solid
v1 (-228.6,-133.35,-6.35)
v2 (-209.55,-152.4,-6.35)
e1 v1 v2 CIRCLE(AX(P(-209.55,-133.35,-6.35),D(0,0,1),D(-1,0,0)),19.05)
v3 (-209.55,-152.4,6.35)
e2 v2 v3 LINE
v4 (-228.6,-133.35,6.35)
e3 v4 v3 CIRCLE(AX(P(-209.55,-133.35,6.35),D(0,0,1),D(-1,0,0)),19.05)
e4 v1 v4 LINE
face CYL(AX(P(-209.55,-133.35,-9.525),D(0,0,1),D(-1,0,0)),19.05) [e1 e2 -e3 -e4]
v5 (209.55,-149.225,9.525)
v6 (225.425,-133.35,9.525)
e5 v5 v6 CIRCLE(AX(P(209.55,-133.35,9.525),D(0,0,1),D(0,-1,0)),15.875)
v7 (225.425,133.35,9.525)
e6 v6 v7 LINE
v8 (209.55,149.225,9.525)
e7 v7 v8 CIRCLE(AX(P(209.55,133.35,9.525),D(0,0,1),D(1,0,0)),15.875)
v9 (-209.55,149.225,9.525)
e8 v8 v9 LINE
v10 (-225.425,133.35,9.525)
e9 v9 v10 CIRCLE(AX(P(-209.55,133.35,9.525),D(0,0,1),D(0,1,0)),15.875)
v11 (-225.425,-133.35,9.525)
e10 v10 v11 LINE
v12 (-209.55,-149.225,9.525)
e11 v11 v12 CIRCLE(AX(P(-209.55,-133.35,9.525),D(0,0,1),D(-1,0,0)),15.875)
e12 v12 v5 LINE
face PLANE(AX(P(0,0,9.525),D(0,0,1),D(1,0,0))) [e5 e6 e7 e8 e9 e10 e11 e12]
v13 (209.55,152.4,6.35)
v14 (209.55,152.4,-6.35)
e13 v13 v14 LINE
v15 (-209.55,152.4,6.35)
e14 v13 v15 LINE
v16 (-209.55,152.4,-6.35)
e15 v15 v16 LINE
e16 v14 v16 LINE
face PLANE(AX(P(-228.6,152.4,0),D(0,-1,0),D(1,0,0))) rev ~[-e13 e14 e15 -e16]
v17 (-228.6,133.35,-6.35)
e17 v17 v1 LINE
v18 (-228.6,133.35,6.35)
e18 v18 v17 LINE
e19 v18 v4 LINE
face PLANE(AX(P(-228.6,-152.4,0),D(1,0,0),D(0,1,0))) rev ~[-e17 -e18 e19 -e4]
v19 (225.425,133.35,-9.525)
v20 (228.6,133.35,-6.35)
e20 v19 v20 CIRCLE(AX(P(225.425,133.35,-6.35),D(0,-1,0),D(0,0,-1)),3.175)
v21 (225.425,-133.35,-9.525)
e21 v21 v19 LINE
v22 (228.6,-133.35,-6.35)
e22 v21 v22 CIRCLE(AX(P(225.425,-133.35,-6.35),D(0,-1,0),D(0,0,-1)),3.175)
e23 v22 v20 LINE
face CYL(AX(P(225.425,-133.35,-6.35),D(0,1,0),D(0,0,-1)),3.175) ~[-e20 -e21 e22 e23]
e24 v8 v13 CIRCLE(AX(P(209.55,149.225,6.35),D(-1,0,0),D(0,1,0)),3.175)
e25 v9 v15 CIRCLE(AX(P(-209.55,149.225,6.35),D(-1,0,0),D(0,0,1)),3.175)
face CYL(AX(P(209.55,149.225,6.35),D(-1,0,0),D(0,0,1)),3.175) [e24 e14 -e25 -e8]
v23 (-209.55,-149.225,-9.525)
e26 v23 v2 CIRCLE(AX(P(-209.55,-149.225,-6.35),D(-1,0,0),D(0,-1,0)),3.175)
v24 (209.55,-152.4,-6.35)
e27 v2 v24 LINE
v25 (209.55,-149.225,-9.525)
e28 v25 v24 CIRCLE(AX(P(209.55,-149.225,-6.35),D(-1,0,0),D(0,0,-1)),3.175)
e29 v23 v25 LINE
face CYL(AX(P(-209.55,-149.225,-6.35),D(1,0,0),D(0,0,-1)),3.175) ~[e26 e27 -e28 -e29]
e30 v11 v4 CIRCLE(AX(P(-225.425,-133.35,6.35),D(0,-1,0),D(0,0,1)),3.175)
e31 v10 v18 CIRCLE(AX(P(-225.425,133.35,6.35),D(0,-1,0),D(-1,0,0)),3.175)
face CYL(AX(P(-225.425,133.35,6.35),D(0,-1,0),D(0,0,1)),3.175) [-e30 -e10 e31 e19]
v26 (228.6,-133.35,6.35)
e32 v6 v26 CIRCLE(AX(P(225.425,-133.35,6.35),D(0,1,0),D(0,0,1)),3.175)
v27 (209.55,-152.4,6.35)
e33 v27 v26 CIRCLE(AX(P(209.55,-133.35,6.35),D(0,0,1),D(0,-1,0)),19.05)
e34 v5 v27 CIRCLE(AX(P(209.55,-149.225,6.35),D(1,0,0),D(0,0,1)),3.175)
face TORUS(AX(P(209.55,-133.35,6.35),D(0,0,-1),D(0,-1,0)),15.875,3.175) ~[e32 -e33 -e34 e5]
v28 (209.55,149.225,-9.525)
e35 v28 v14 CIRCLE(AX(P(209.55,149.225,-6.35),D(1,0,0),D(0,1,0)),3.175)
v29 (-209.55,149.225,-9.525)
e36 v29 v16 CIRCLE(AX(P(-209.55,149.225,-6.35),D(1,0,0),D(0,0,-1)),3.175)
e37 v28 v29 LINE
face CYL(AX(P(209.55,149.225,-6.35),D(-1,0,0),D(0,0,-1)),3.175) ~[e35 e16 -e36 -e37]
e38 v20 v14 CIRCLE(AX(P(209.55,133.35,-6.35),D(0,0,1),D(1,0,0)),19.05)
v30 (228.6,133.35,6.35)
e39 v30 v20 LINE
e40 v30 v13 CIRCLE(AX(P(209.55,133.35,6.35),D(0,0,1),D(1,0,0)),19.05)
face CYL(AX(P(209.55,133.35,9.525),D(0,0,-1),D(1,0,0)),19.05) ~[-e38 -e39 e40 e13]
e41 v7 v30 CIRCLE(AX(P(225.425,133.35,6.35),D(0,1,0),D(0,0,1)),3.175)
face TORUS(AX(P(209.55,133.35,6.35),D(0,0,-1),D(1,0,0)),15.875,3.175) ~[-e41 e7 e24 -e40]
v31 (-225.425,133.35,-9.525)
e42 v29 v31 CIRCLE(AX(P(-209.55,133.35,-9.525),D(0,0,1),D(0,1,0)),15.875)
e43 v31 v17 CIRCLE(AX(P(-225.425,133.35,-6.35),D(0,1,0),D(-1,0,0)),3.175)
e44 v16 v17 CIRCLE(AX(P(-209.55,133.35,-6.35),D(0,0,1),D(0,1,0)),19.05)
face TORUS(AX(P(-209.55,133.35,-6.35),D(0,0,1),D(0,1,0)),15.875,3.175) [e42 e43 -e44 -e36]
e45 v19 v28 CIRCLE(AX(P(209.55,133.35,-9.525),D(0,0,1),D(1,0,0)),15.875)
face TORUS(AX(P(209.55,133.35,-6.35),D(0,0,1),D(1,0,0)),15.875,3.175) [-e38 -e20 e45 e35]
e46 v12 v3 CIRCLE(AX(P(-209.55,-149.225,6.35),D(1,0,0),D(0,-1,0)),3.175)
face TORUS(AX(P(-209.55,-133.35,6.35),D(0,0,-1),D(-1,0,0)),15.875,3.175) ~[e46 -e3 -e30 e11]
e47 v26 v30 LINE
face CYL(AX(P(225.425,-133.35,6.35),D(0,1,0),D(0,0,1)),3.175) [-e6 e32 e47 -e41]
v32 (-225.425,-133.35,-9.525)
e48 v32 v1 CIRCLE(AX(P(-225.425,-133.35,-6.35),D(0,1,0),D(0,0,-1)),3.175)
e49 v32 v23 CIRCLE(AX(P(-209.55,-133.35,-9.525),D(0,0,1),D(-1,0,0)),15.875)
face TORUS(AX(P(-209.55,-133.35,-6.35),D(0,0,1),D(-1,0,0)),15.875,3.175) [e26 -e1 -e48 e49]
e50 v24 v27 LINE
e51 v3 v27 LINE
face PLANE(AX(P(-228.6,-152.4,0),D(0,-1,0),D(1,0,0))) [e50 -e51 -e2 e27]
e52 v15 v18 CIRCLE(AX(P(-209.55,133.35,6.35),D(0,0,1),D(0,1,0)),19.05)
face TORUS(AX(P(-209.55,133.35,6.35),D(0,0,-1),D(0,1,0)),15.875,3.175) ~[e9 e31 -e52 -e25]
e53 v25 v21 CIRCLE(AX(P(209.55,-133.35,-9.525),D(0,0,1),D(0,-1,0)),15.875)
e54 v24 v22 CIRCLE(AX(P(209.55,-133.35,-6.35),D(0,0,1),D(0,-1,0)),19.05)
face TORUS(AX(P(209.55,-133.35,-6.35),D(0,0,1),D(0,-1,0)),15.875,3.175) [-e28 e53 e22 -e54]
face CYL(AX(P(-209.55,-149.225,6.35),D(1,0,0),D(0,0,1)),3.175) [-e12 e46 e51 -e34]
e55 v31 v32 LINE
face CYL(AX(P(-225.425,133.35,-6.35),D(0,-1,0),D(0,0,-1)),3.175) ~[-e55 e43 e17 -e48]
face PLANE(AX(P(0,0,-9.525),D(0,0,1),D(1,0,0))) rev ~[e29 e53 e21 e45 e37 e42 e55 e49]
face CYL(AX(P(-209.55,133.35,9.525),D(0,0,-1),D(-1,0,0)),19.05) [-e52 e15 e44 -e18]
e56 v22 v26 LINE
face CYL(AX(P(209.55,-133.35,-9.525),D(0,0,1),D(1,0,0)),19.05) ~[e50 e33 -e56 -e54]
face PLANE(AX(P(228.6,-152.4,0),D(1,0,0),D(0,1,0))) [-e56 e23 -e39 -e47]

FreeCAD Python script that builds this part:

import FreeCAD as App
import Part
import Sketcher
Q = App.Units.Quantity


def edges_at(feature, points):
    """Names of the edges that pass closest to the given points."""
    edges = feature.Shape.Edges
    near = lambda p: min(range(len(edges)), key=lambda i: edges[i].distToShape(Part.Vertex(*p))[0])
    return sorted({f"Edge{near(p) + 1}" for p in points})

doc = App.newDocument("Part")
body = doc.addObject("PartDesign::Body", "Body")

sketch1 = body.newObject("Sketcher::SketchObject", "Sketch")
sketch1.AttachmentSupport = (doc.getObject("XY_Plane"), [""])
sketch1.MapMode = "FlatFace"
sketch1.addGeometry([
    Part.LineSegment(App.Vector(-228.6, 152.4, 0), App.Vector(-228.6, -152.4, 0)),
    Part.LineSegment(App.Vector(-228.6, -152.4, 0), App.Vector(228.6, -152.4, 0)),
    Part.LineSegment(App.Vector(228.6, -152.4, 0), App.Vector(228.6, 152.4, 0)),
    Part.LineSegment(App.Vector(228.6, 152.4, 0), App.Vector(-228.6, 152.4, 0)),
], False)
sketch1.addConstraint([
    Sketcher.Constraint("Coincident", 0, 2, 1, 1),
    Sketcher.Constraint("Coincident", 1, 2, 2, 1),
    Sketcher.Constraint("Coincident", 2, 2, 3, 1),
    Sketcher.Constraint("Coincident", 3, 2, 0, 1),
    Sketcher.Constraint("Vertical", 0),
    Sketcher.Constraint("Horizontal", 1),
    Sketcher.Constraint("Vertical", 2),
    Sketcher.Constraint("Horizontal", 3),
    Sketcher.Constraint("Symmetric", 0, 2, 2, 2, -1, 1),
    Sketcher.Constraint("DistanceX", 1, 1, 1, 2, Q("18 in")),
    Sketcher.Constraint("DistanceY", 0, 2, 0, 1, Q("12 in")),
])
pad1 = body.newObject("PartDesign::Pad", "Pad")
pad1.Profile = sketch1
pad1.Length = Q("0.75 in")
pad1.Midplane = True
doc.recompute()

fillet = body.newObject("PartDesign::Fillet", "Fillet")
fillet.Base = (pad1, edges_at(pad1, [
    (-228.6, -152.4, 0),
    (228.6, -152.4, 0),
    (228.6, 152.4, 0),
    (-228.6, 152.4, 0),
]))
fillet.Radius = Q("0.75 in")
doc.recompute()

fillet2 = body.newObject("PartDesign::Fillet", "Fillet001")
fillet2.Base = (fillet, edges_at(fillet, [
    (228.6, 0, 9.525),
    (223.02, -146.82, 9.525),
    (223.02, 146.82, 9.525),
    (0, -152.4, 9.525),
    (0, 152.4, 9.525),
    (-223.02, -146.82, 9.525),
    (-223.02, 146.82, 9.525),
    (-228.6, 0, 9.525),
    (228.6, 0, -9.525),
    (223.02, -146.82, -9.525),
    (223.02, 146.82, -9.525),
    (0, -152.4, -9.525),
    (0, 152.4, -9.525),
    (-223.02, -146.82, -9.525),
    (-223.02, 146.82, -9.525),
    (-228.6, 0, -9.525),
]))
fillet2.Radius = Q("0.125 in")

doc.recompute()
